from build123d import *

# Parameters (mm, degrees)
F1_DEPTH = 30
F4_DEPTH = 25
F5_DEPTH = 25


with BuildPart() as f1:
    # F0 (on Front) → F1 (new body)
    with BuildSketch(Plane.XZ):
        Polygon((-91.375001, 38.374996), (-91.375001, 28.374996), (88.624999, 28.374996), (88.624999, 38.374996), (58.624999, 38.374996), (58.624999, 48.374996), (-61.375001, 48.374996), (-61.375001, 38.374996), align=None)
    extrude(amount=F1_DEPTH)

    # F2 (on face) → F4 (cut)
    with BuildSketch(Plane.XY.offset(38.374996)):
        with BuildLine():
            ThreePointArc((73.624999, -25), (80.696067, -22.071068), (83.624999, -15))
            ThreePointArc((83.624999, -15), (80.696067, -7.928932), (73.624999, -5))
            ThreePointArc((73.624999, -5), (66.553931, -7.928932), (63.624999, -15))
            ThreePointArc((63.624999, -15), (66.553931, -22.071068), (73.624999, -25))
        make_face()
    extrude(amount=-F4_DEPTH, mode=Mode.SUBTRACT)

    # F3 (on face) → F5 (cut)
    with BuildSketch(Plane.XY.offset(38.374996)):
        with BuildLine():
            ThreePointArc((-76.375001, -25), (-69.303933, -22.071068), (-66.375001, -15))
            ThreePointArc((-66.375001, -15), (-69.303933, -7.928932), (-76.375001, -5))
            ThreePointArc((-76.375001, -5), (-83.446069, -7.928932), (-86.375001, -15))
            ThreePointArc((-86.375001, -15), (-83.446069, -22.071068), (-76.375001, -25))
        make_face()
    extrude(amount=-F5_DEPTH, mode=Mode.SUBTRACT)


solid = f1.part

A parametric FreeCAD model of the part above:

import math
import FreeCAD as App
import Part
import Sketcher
from FreeCAD import Vector

doc = App.newDocument("Part")
body = doc.addObject("PartDesign::Body", "Body")

# Sketch on XZ plane
sketch1 = body.newObject("Sketcher::SketchObject", "Sketch")
sketch1.AttachmentSupport = (doc.getObject("XZ_Plane"), [""])
sketch1.MapMode = "FlatFace"
sketch1.addGeometry([
    Part.LineSegment(Vector(-91, 38, 0), Vector(-91, 28, 0)),  # 0
    Part.LineSegment(Vector(-91, 28, 0), Vector(89, 28, 0)),  # 1
    Part.LineSegment(Vector(89, 28, 0), Vector(89, 38, 0)),  # 2
    Part.LineSegment(Vector(89, 38, 0), Vector(59, 38, 0)),  # 3
    Part.LineSegment(Vector(59, 38, 0), Vector(59, 48, 0)),  # 4
    Part.LineSegment(Vector(59, 48, 0), Vector(-61, 48, 0)),  # 5
    Part.LineSegment(Vector(-61, 48, 0), Vector(-61, 38, 0)),  # 6
    Part.LineSegment(Vector(-61, 38, 0), Vector(-91, 38, 0)),  # 7
], False)
sketch1.addConstraint([
    Sketcher.Constraint("Coincident", 0, 2, 1, 1),
    Sketcher.Constraint("Coincident", 1, 2, 2, 1),
    Sketcher.Constraint("Coincident", 2, 2, 3, 1),
    Sketcher.Constraint("Coincident", 3, 2, 4, 1),
    Sketcher.Constraint("Coincident", 4, 2, 5, 1),
    Sketcher.Constraint("Coincident", 5, 2, 6, 1),
    Sketcher.Constraint("Coincident", 6, 2, 7, 1),
    Sketcher.Constraint("Coincident", 7, 2, 0, 1),
    Sketcher.Constraint("Vertical", 0),
    Sketcher.Constraint("Horizontal", 1),
    Sketcher.Constraint("Vertical", 2),
    Sketcher.Constraint("Horizontal", 3),
    Sketcher.Constraint("Vertical", 4),
    Sketcher.Constraint("Horizontal", 5),
    Sketcher.Constraint("Vertical", 6),
    Sketcher.Constraint("Horizontal", 7),
    Sketcher.Constraint("Horizontal", 3, 2, 6, 2),
    Sketcher.Constraint("Equal", 3, 7),
    Sketcher.Constraint("Equal", 2, 4),
    Sketcher.Constraint("DistanceX", 1, 1, 1, 2, 180.0),
    Sketcher.Constraint("DistanceX", 3, 2, 3, 1, 30.0),
    Sketcher.Constraint("DistanceY", 0, 2, 0, 1, 10.0),
    Sketcher.Constraint("DistanceX", 0, 2, -1, 1, 91.375001),
    Sketcher.Constraint("DistanceY", -1, 1, 0, 2, 28.374996),
])
pad1 = body.newObject("PartDesign::Pad", "Pad")
pad1.Profile = sketch1
pad1.Length = 30

# Sketch on XY plane
sketch2 = body.newObject("Sketcher::SketchObject", "Sketch001")
sketch2.AttachmentSupport = (doc.getObject("XY_Plane"), [""])
sketch2.MapMode = "FlatFace"
sketch2.AttachmentOffset = App.Placement(Vector(0, 0, 38.374996), App.Rotation())
sketch2.addGeometry([
    Part.ArcOfCircle(Part.Circle(Vector(74, -15, 0), Vector(0, 0, 1), 10), math.radians(-90), math.radians(0)),
    Part.ArcOfCircle(Part.Circle(Vector(74, -15, 0), Vector(0, 0, 1), 10), math.radians(0), math.radians(90)),
    Part.ArcOfCircle(Part.Circle(Vector(74, -15, 0), Vector(0, 0, 1), 10), math.radians(90), math.radians(180)),
    Part.ArcOfCircle(Part.Circle(Vector(74, -15, 0), Vector(0, 0, 1), 10), math.radians(180), math.radians(270)),
], False)
sketch2.addConstraint([
    Sketcher.Constraint("Tangent", 0, 2, 1, 1),
    Sketcher.Constraint("Tangent", 1, 2, 2, 1),
    Sketcher.Constraint("Tangent", 2, 2, 3, 1),
    Sketcher.Constraint("Tangent", 3, 2, 0, 1),
    Sketcher.Constraint("Equal", 0, 1),
    Sketcher.Constraint("Horizontal", 3, 3, 0, 2),
    Sketcher.Constraint("Horizontal", 0, 2, 2, 2),
    Sketcher.Constraint("Vertical", 3, 3, 1, 2),
    Sketcher.Constraint("Vertical", 1, 2, 3, 2),
    Sketcher.Constraint("Radius", 0, 9.999999),
    Sketcher.Constraint("DistanceY", 0, 3, -1, 1, 15.000001),
    Sketcher.Constraint("DistanceX", -1, 1, 0, 3, 73.625),
])
pocket1 = body.newObject("PartDesign::Pocket", "Pocket")
pocket1.Profile = sketch2
pocket1.Length = 25

# Sketch on XY plane
sketch3 = body.newObject("Sketcher::SketchObject", "Sketch002")
sketch3.AttachmentSupport = (doc.getObject("XY_Plane"), [""])
sketch3.MapMode = "FlatFace"
sketch3.AttachmentOffset = App.Placement(Vector(0, 0, 38.374996), App.Rotation())
sketch3.addGeometry([
    Part.ArcOfCircle(Part.Circle(Vector(-76, -15, 0), Vector(0, 0, 1), 10), math.radians(-90), math.radians(0)),
    Part.ArcOfCircle(Part.Circle(Vector(-76, -15, 0), Vector(0, 0, 1), 10), math.radians(0), math.radians(90)),
    Part.ArcOfCircle(Part.Circle(Vector(-76, -15, 0), Vector(0, 0, 1), 10), math.radians(90), math.radians(180)),
    Part.ArcOfCircle(Part.Circle(Vector(-76, -15, 0), Vector(0, 0, 1), 10), math.radians(180), math.radians(270)),
], False)
sketch3.addConstraint([
    Sketcher.Constraint("Tangent", 0, 2, 1, 1),
    Sketcher.Constraint("Tangent", 1, 2, 2, 1),
    Sketcher.Constraint("Tangent", 2, 2, 3, 1),
    Sketcher.Constraint("Tangent", 3, 2, 0, 1),
    Sketcher.Constraint("Equal", 0, 1),
    Sketcher.Constraint("Horizontal", 3, 3, 0, 2),
    Sketcher.Constraint("Horizontal", 0, 2, 2, 2),
    Sketcher.Constraint("Vertical", 3, 3, 1, 2),
    Sketcher.Constraint("Vertical", 1, 2, 3, 2),
    Sketcher.Constraint("Radius", 0, 9.999999),
    Sketcher.Constraint("DistanceY", 0, 3, -1, 1, 15.000001),
    Sketcher.Constraint("DistanceX", 0, 3, -1, 1, 76.375),
])
pocket2 = body.newObject("PartDesign::Pocket", "Pocket001")
pocket2.Profile = sketch3
pocket2.Length = 25

doc.recompute()
